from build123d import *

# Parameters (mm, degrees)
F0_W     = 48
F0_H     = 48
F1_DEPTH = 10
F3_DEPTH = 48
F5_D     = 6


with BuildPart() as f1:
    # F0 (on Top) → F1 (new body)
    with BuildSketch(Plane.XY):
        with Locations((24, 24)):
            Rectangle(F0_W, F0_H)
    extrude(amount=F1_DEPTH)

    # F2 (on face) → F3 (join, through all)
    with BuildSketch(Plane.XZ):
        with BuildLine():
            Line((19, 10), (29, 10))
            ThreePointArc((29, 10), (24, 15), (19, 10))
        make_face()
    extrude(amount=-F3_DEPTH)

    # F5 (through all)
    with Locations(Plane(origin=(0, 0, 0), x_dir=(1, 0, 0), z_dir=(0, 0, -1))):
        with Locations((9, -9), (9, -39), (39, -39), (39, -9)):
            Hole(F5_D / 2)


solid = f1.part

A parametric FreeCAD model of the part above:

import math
import FreeCAD as App
import Part
import Sketcher

V = App.Vector


def add_polygon(sketch, points):
    """Adds a closed chain of lines whose ends are joined by coincident constraints."""
    first, n = sketch.GeometryCount, len(points)
    for a, b in zip(points, points[1:] + points[:1]):
        sketch.addGeometry(Part.LineSegment(App.Vector(*a, 0), App.Vector(*b, 0)), False)
    for i in range(n):
        sketch.addConstraint(Sketcher.Constraint("Coincident", first + i, 2, first + (i + 1) % n, 1))

doc = App.newDocument("Part")
body = doc.addObject("PartDesign::Body", "Body")

# Sketch on XY plane
sketch1 = body.newObject("Sketcher::SketchObject", "Sketch")
sketch1.AttachmentSupport = (doc.getObject("XY_Plane"), [""])
sketch1.MapMode = "FlatFace"
add_polygon(sketch1, [(0, 48), (0, 0), (48, 0), (48, 48)])  # lines 0-3
sketch1.addConstraint(Sketcher.Constraint("Vertical", 0))
sketch1.addConstraint(Sketcher.Constraint("Horizontal", 1))
sketch1.addConstraint(Sketcher.Constraint("Vertical", 2))
sketch1.addConstraint(Sketcher.Constraint("Horizontal", 3))
sketch1.addConstraint(Sketcher.Constraint("Coincident", 0, 2, -1, 1))
sketch1.addConstraint(Sketcher.Constraint("Equal", 3, 0))
sketch1.addConstraint(Sketcher.Constraint("DistanceX", 1, 1, 1, 2, 48.0))
pad1 = body.newObject("PartDesign::Pad", "Pad")
pad1.Profile = sketch1
pad1.Length = 10

# Sketch on XZ plane
sketch2 = body.newObject("Sketcher::SketchObject", "Sketch001")
sketch2.AttachmentSupport = (doc.getObject("XZ_Plane"), [""])
sketch2.MapMode = "FlatFace"
sketch2.addGeometry(Part.LineSegment(V(19, 10, 0), V(29, 10, 0)), False)
sketch2.addGeometry(Part.ArcOfCircle(Part.Circle(V(24, 10, 0), V(0, 0, 1), 5), math.radians(0), math.radians(180)), False)
sketch2.addConstraint(Sketcher.Constraint("Coincident", 0, 1, 1, 2))
sketch2.addConstraint(Sketcher.Constraint("Coincident", 1, 1, 0, 2))
sketch2.addConstraint(Sketcher.Constraint("Horizontal", 0))
sketch2.addConstraint(Sketcher.Constraint("Horizontal", 1, 3, 0, 1))
sketch2.addConstraint(Sketcher.Constraint("Radius", 1, 5.0))
sketch2.addConstraint(Sketcher.Constraint("DistanceX", -1, 1, 1, 3, 24.0))
sketch2.addConstraint(Sketcher.Constraint("DistanceY", -1, 1, 1, 3, 10.0))
pad2 = body.newObject("PartDesign::Pad", "Pad001")
pad2.Profile = sketch2
pad2.Length = 48
pad2.Reversed = True

# Sketch on XY plane
sketch3 = body.newObject("Sketcher::SketchObject", "Sketch002")
sketch3.AttachmentSupport = (doc.getObject("XY_Plane"), [""])
sketch3.MapMode = "FlatFace"
sketch3.addGeometry(Part.Circle(V(9, 9, 0), V(0, 0, 1), 3), False)
sketch3.addGeometry(Part.Circle(V(9, 39, 0), V(0, 0, 1), 3), False)
sketch3.addGeometry(Part.Circle(V(39, 39, 0), V(0, 0, 1), 3), False)
sketch3.addGeometry(Part.Circle(V(39, 9, 0), V(0, 0, 1), 3), False)
sketch3.addConstraint(Sketcher.Constraint("Equal", 0, 1))
sketch3.addConstraint(Sketcher.Constraint("Equal", 1, 2))
sketch3.addConstraint(Sketcher.Constraint("Equal", 2, 3))
sketch3.addConstraint(Sketcher.Constraint("Horizontal", 1, 3, 2, 3))
sketch3.addConstraint(Sketcher.Constraint("Horizontal", 0, 3, 3, 3))
sketch3.addConstraint(Sketcher.Constraint("Vertical", 0, 3, 1, 3))
sketch3.addConstraint(Sketcher.Constraint("Vertical", 2, 3, 3, 3))
sketch3.addConstraint(Sketcher.Constraint("Diameter", 0, 6.0))
sketch3.addConstraint(Sketcher.Constraint("DistanceX", -1, 1, 0, 3, 9.0))
sketch3.addConstraint(Sketcher.Constraint("DistanceY", -1, 1, 0, 3, 9.0))
sketch3.addConstraint(Sketcher.Constraint("DistanceY", -1, 1, 1, 3, 39.0))
sketch3.addConstraint(Sketcher.Constraint("DistanceX", -1, 1, 2, 3, 39.0))
doc.recompute()
hole = body.newObject("PartDesign::Hole", "Hole")
hole.Profile = sketch3
hole.ThreadType = "None"
hole.Diameter = 6
hole.DepthType = "ThroughAll"
hole.Reversed = True

doc.recompute()
